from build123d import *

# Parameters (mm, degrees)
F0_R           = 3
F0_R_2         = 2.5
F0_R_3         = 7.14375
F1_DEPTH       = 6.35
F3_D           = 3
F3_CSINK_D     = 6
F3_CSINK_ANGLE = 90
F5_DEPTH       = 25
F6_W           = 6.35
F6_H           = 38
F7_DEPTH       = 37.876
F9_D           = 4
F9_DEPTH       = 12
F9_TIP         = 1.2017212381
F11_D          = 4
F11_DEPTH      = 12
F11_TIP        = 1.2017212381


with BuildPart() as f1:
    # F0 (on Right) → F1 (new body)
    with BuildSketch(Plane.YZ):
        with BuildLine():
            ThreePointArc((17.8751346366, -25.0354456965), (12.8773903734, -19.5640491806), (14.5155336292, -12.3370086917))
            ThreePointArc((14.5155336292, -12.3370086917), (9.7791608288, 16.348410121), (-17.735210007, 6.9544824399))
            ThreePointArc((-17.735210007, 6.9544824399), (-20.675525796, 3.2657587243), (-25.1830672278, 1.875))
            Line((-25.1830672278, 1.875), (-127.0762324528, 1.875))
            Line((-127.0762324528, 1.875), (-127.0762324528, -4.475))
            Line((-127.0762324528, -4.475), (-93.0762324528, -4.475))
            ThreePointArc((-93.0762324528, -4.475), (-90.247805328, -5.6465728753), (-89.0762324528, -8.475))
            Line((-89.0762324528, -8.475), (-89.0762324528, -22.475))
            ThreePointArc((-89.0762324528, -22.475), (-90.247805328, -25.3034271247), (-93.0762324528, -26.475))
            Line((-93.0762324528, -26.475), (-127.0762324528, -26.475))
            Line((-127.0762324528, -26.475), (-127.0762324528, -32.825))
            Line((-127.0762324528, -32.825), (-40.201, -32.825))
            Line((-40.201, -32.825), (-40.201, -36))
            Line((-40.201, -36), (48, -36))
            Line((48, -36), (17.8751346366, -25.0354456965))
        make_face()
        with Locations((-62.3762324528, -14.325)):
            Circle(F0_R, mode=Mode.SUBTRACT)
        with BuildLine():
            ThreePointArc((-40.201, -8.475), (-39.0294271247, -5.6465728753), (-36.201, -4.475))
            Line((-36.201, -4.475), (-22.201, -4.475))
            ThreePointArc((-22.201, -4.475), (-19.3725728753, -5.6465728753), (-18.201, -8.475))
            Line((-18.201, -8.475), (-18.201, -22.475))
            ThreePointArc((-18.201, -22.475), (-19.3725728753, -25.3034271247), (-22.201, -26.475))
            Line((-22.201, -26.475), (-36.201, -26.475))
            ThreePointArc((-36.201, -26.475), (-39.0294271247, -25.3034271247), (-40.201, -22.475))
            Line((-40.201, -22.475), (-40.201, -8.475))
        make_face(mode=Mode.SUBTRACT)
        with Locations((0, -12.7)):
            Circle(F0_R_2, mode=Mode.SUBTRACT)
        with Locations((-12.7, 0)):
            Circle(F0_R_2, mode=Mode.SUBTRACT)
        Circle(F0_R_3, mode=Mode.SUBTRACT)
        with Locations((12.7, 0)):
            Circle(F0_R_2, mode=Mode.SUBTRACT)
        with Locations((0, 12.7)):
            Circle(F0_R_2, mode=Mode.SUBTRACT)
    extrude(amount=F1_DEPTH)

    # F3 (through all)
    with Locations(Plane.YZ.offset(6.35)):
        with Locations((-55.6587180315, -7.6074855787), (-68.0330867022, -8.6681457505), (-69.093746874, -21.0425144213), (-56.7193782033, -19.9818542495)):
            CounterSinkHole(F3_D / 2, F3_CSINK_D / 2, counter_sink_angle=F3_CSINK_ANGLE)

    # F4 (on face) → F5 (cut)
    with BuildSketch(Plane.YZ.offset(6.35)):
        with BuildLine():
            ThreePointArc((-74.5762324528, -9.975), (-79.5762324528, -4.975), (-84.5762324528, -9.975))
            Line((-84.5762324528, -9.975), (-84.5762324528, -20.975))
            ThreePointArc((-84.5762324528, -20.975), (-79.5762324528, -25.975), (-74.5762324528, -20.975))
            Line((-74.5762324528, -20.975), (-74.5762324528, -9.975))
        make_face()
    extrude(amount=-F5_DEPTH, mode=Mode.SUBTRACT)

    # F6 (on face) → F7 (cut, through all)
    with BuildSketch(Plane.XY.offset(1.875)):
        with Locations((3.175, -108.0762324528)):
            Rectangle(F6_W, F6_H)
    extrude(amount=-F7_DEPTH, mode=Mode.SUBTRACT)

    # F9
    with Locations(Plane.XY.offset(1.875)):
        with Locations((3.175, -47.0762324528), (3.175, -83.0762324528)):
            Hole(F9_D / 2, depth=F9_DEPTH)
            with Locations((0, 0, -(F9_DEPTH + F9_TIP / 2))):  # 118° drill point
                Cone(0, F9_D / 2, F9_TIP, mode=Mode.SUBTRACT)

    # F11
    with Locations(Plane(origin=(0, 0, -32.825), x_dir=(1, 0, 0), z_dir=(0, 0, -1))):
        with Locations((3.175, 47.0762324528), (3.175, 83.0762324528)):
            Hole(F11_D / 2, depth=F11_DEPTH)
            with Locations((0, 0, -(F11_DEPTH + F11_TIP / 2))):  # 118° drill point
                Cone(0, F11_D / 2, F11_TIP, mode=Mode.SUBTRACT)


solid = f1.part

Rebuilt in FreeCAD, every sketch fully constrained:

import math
import FreeCAD as App
import Part
import Sketcher
from FreeCAD import Vector
Q = App.Units.Quantity


def add_polygon(sketch, points):
    """Adds a closed chain of lines whose ends are joined by coincident constraints."""
    first, n = sketch.GeometryCount, len(points)
    for a, b in zip(points, points[1:] + points[:1]):
        sketch.addGeometry(Part.LineSegment(App.Vector(*a, 0), App.Vector(*b, 0)), False)
    for i in range(n):
        sketch.addConstraint(Sketcher.Constraint("Coincident", first + i, 2, first + (i + 1) % n, 1))

doc = App.newDocument("Part")
body = doc.addObject("PartDesign::Body", "Body")

# Sketch on YZ plane
sketch1 = doc.addObject("Sketcher::SketchObject", "Sketch")
body.addObject(sketch1)
sketch1.AttachmentSupport = (doc.YZ_Plane, [""])
sketch1.MapMode = "FlatFace"
sketch1.addGeometry([
    Part.ArcOfCircle(Part.Circle(Vector(20.6, -17.5, 0), Vector(0, 0, 1), 8), math.radians(140), math.radians(250)),  # 0
    Part.ArcOfCircle(Part.Circle(Vector(0, 0, 0), Vector(0, 0, 1), 19.1), math.radians(-40), math.radians(159)),  # 1
    Part.ArcOfCircle(Part.Circle(Vector(-25.2, 9.9, 0), Vector(0, 0, 1), 8), math.radians(-90), math.radians(-21)),  # 2
    Part.LineSegment(Vector(-25.2, 1.9, 0), Vector(-127.1, 1.9, 0)),  # 3
    Part.LineSegment(Vector(-127.1, 1.9, 0), Vector(-127.1, -4.5, 0)),  # 4
    Part.LineSegment(Vector(-127.1, -4.5, 0), Vector(-93.1, -4.5, 0)),  # 5
    Part.ArcOfCircle(Part.Circle(Vector(-93.1, -8.5, 0), Vector(0, 0, 1), 4), math.radians(0), math.radians(90)),  # 6
    Part.LineSegment(Vector(-89.1, -8.5, 0), Vector(-89.1, -22.5, 0)),  # 7
    Part.ArcOfCircle(Part.Circle(Vector(-93.1, -22.5, 0), Vector(0, 0, 1), 4), math.radians(-90), math.radians(0)),  # 8
    Part.LineSegment(Vector(-93.1, -26.5, 0), Vector(-127.1, -26.5, 0)),  # 9
    Part.LineSegment(Vector(-127.1, -26.5, 0), Vector(-127.1, -32.8, 0)),  # 10
    Part.LineSegment(Vector(-127.1, -32.8, 0), Vector(-40.2, -32.8, 0)),  # 11
    Part.LineSegment(Vector(-40.2, -32.8, 0), Vector(-40.2, -36, 0)),  # 12
    Part.LineSegment(Vector(-40.2, -36, 0), Vector(48, -36, 0)),  # 13
    Part.LineSegment(Vector(48, -36, 0), Vector(17.9, -25, 0)),  # 14
    Part.Circle(Vector(-62.4, -14.3, 0), Vector(0, 0, 1), 3),  # 15
    Part.LineSegment(Vector(-40.2, -22.5, 0), Vector(-40.2, -8.5, 0)),  # 16
    Part.ArcOfCircle(Part.Circle(Vector(-36.2, -8.5, 0), Vector(0, 0, 1), 4), math.radians(90), math.radians(180)),  # 17
    Part.LineSegment(Vector(-36.2, -4.5, 0), Vector(-22.2, -4.5, 0)),  # 18
    Part.ArcOfCircle(Part.Circle(Vector(-22.2, -8.5, 0), Vector(0, 0, 1), 4), math.radians(0), math.radians(90)),  # 19
    Part.LineSegment(Vector(-18.2, -8.5, 0), Vector(-18.2, -22.5, 0)),  # 20
    Part.ArcOfCircle(Part.Circle(Vector(-22.2, -22.5, 0), Vector(0, 0, 1), 4), math.radians(-90), math.radians(0)),  # 21
    Part.LineSegment(Vector(-22.2, -26.5, 0), Vector(-36.2, -26.5, 0)),  # 22
    Part.ArcOfCircle(Part.Circle(Vector(-36.2, -22.5, 0), Vector(0, 0, 1), 4), math.radians(180), math.radians(270)),  # 23
    Part.Circle(Vector(0, -12.7, 0), Vector(0, 0, 1), 2.5),  # 24
    Part.Circle(Vector(-12.7, 0, 0), Vector(0, 0, 1), 2.5),  # 25
    Part.Circle(Vector(0, 0, 0), Vector(0, 0, 1), 7.1),  # 26
    Part.Circle(Vector(12.7, 0, 0), Vector(0, 0, 1), 2.5),  # 27
    Part.Circle(Vector(0, 12.7, 0), Vector(0, 0, 1), 2.5),  # 28
], False)
sketch1.addConstraint([
    Sketcher.Constraint("Tangent", 0, 1, 1, 1),
    Sketcher.Constraint("Tangent", 1, 2, 2, 2),
    Sketcher.Constraint("Tangent", 2, 1, 3, 1),
    Sketcher.Constraint("Coincident", 3, 2, 4, 1),
    Sketcher.Constraint("Coincident", 4, 2, 5, 1),
    Sketcher.Constraint("Tangent", 5, 2, 6, 2),
    Sketcher.Constraint("Tangent", 6, 1, 7, 1),
    Sketcher.Constraint("Tangent", 7, 2, 8, 2),
    Sketcher.Constraint("Tangent", 8, 1, 9, 1),
    Sketcher.Constraint("Coincident", 9, 2, 10, 1),
    Sketcher.Constraint("Coincident", 10, 2, 11, 1),
    Sketcher.Constraint("Coincident", 11, 2, 12, 1),
    Sketcher.Constraint("Coincident", 12, 2, 13, 1),
    Sketcher.Constraint("Coincident", 13, 2, 14, 1),
    Sketcher.Constraint("Tangent", 14, 2, 0, 2),
    Sketcher.Constraint("Tangent", 16, 2, 17, 2),
    Sketcher.Constraint("Tangent", 17, 1, 18, 1),
    Sketcher.Constraint("Tangent", 18, 2, 19, 2),
    Sketcher.Constraint("Tangent", 19, 1, 20, 1),
    Sketcher.Constraint("Tangent", 20, 2, 21, 2),
    Sketcher.Constraint("Tangent", 21, 1, 22, 1),
    Sketcher.Constraint("Tangent", 22, 2, 23, 2),
    Sketcher.Constraint("Tangent", 23, 1, 16, 1),
    Sketcher.Constraint("Horizontal", 3),
    Sketcher.Constraint("Vertical", 4),
    Sketcher.Constraint("Horizontal", 5),
    Sketcher.Constraint("Vertical", 7),
    Sketcher.Constraint("Horizontal", 9),
    Sketcher.Constraint("Vertical", 10),
    Sketcher.Constraint("Horizontal", 11),
    Sketcher.Constraint("Vertical", 12),
    Sketcher.Constraint("Horizontal", 13),
    Sketcher.Constraint("Vertical", 16),
    Sketcher.Constraint("Horizontal", 18),
    Sketcher.Constraint("Vertical", 20),
    Sketcher.Constraint("Horizontal", 22),
    Sketcher.Constraint("Coincident", 1, 3, -1, 1),
    Sketcher.Constraint("Coincident", 26, 3, -1, 1),
    Sketcher.Constraint("Equal", 0, 2),
    Sketcher.Constraint("Equal", 6, 8),
    Sketcher.Constraint("Equal", 8, 17),
    Sketcher.Constraint("Equal", 17, 19),
    Sketcher.Constraint("Equal", 19, 21),
    Sketcher.Constraint("Equal", 21, 23),
    Sketcher.Constraint("Equal", 24, 25),
    Sketcher.Constraint("Equal", 25, 27),
    Sketcher.Constraint("Equal", 27, 28),
    Sketcher.Constraint("Symmetric", 25, 3, 27, 3, -1, 1),
    Sketcher.Constraint("Symmetric", 24, 3, 28, 3, -1, 1),
    Sketcher.Constraint("PointOnObject", 24, 3, -2),
    Sketcher.Constraint("PointOnObject", 25, 3, -1),
    Sketcher.Constraint("Horizontal", 6, 3, 17, 3),
    Sketcher.Constraint("Horizontal", 8, 3, 21, 3),
    Sketcher.Constraint("Vertical", 4, 2, 9, 2),
    Sketcher.Constraint("Vertical", 12, 2, 16, 2),
    Sketcher.Constraint("Equal", 22, 7),
    Sketcher.Constraint("Equal", 4, 10),
    Sketcher.Constraint("Diameter", 15, Q("6 mm")),
    Sketcher.Constraint("Diameter", 24, Q("5 mm")),
    Sketcher.Constraint("Radius", 0, Q("8 mm")),
    Sketcher.Constraint("Radius", 6, Q("4 mm")),
    Sketcher.Constraint("DistanceX", 5, 1, 5, 2, Q("34 mm")),
    Sketcher.Constraint("DistanceX", 18, 1, 18, 2, Q("14 mm")),
    Sketcher.Constraint("Angle", 14, Q("160 deg")),
    Sketcher.Constraint("Radius", 1, Q("19.05 mm")),
    Sketcher.Constraint("DistanceY", 12, 2, -1, 1, Q("36 mm")),
    Sketcher.Constraint("DistanceX", -1, 1, 13, 2, Q("48 mm")),
    Sketcher.Constraint("Diameter", 26, Q("14.2875 mm")),
    Sketcher.Constraint("DistanceY", 4, 2, 4, 1, Q("6.35 mm")),
    Sketcher.Constraint("DistanceY", 24, 3, -1, 1, Q("12.7 mm")),
    Sketcher.Constraint("DistanceX", 25, 3, -1, 1, Q("12.7 mm")),
    Sketcher.Constraint("DistanceX", 6, 3, 15, 3, Q("30.7 mm")),
    Sketcher.Constraint("DistanceY", 15, 3, 2, 3, Q("24.2 mm")),
    Sketcher.Constraint("DistanceX", 13, 1, 13, 2, Q("88.201 mm")),
    Sketcher.Constraint("DistanceY", 12, 2, 12, 1, Q("3.175 mm")),
    Sketcher.Constraint("DistanceX", 3, 2, 3, 1, Q("101.893165 mm")),
])
pad1 = doc.addObject("PartDesign::Pad", "Pad")
body.addObject(pad1)
pad1.Profile = sketch1
pad1.Length = 6.35

# Sketch on YZ plane
sketch2 = doc.addObject("Sketcher::SketchObject", "Sketch001")
body.addObject(sketch2)
sketch2.AttachmentSupport = (doc.YZ_Plane, [""])
sketch2.MapMode = "FlatFace"
sketch2.AttachmentOffset = App.Placement(Vector(0, 0, 6.35), App.Rotation())
sketch2.addGeometry([
    Part.Circle(Vector(-55.7, -7.6, 0), Vector(0, 0, 1), 1.5),
    Part.Circle(Vector(-68, -8.7, 0), Vector(0, 0, 1), 1.5),
    Part.Circle(Vector(-69.1, -21, 0), Vector(0, 0, 1), 1.5),
    Part.Circle(Vector(-56.7, -20, 0), Vector(0, 0, 1), 1.5),
], False)
sketch2.addConstraint([
    Sketcher.Constraint("Equal", 0, 1),
    Sketcher.Constraint("Equal", 1, 2),
    Sketcher.Constraint("Equal", 2, 3),
    Sketcher.Constraint("Diameter", 0, Q("3 mm")),
    Sketcher.Constraint("DistanceX", 0, 3, -1, 1, Q("55.658718 mm")),
    Sketcher.Constraint("DistanceX", 3, 3, -1, 1, Q("56.719378 mm")),
    Sketcher.Constraint("DistanceX", 1, 3, 0, 3, Q("12.374369 mm")),
    Sketcher.Constraint("DistanceY", 1, 3, 0, 3, Q("1.06066 mm")),
    Sketcher.Constraint("DistanceX", 2, 3, 1, 3, Q("1.06066 mm")),
    Sketcher.Constraint("DistanceY", 2, 3, 1, 3, Q("12.374369 mm")),
    Sketcher.Constraint("DistanceY", 3, 3, 0, 3, Q("12.374369 mm")),
    Sketcher.Constraint("DistanceY", 0, 3, -1, 1, Q("7.607486 mm")),
])
doc.recompute()
hole = doc.addObject("PartDesign::Hole", "Hole")
body.addObject(hole)
hole.Profile = sketch2
hole.ThreadType = "None"
hole.Diameter = 3
hole.DepthType = "ThroughAll"
hole.HoleCutType = "Countersink"
hole.HoleCutDiameter = 6
hole.HoleCutCountersinkAngle = 90

# Sketch on YZ plane
sketch3 = doc.addObject("Sketcher::SketchObject", "Sketch002")
body.addObject(sketch3)
sketch3.AttachmentSupport = (doc.YZ_Plane, [""])
sketch3.MapMode = "FlatFace"
sketch3.AttachmentOffset = App.Placement(Vector(0, 0, 6.35), App.Rotation())
sketch3.addGeometry([
    Part.ArcOfCircle(Part.Circle(Vector(-80, -10, 0), Vector(0, 0, 1), 5), math.radians(0), math.radians(180)),
    Part.LineSegment(Vector(-85, -10, 0), Vector(-85, -21, 0)),
    Part.ArcOfCircle(Part.Circle(Vector(-80, -21, 0), Vector(0, 0, 1), 5), math.radians(180), math.radians(360)),
    Part.LineSegment(Vector(-75, -21, 0), Vector(-75, -10, 0)),
], False)
sketch3.addConstraint([
    Sketcher.Constraint("Tangent", 0, 2, 1, 1),
    Sketcher.Constraint("Tangent", 1, 2, 2, 1),
    Sketcher.Constraint("Tangent", 2, 2, 3, 1),
    Sketcher.Constraint("Tangent", 3, 2, 0, 1),
    Sketcher.Constraint("Vertical", 1),
    Sketcher.Constraint("Vertical", 3),
    Sketcher.Constraint("Radius", 0, Q("5 mm")),
    Sketcher.Constraint("DistanceY", 1, 2, 1, 1, Q("11 mm")),
    Sketcher.Constraint("DistanceY", 0, 3, -1, 1, Q("9.975 mm")),
    Sketcher.Constraint("DistanceX", 0, 3, -1, 1, Q("79.576232 mm")),
])
pocket1 = doc.addObject("PartDesign::Pocket", "Pocket")
body.addObject(pocket1)
pocket1.Profile = sketch3
pocket1.Length = 25

# Sketch on XY plane
sketch4 = doc.addObject("Sketcher::SketchObject", "Sketch003")
body.addObject(sketch4)
sketch4.AttachmentSupport = (doc.XY_Plane, [""])
sketch4.MapMode = "FlatFace"
sketch4.AttachmentOffset = App.Placement(Vector(0, 0, 1.875), App.Rotation())
add_polygon(sketch4, [(0, -89), (0, -127), (6, -127), (6, -89)])  # lines 0-3
sketch4.addConstraint([
    Sketcher.Constraint("Vertical", 0),
    Sketcher.Constraint("Horizontal", 1),
    Sketcher.Constraint("Vertical", 2),
    Sketcher.Constraint("Horizontal", 3),
    Sketcher.Constraint("PointOnObject", 0, 2, -2),
    Sketcher.Constraint("DistanceY", 0, 2, 0, 1, Q("38 mm")),
    Sketcher.Constraint("DistanceX", 1, 1, 1, 2, Q("6.35 mm")),
    Sketcher.Constraint("DistanceY", 0, 2, -1, 1, Q("127.076232 mm")),
])
pocket2 = doc.addObject("PartDesign::Pocket", "Pocket001")
body.addObject(pocket2)
pocket2.Profile = sketch4
pocket2.Type = "ThroughAll"

# Sketch on XY plane
sketch5 = doc.addObject("Sketcher::SketchObject", "Sketch004")
body.addObject(sketch5)
sketch5.AttachmentSupport = (doc.XY_Plane, [""])
sketch5.MapMode = "FlatFace"
sketch5.AttachmentOffset = App.Placement(Vector(0, 0, 1.875), App.Rotation())
sketch5.addGeometry([
    Part.Circle(Vector(3.2, -47.1, 0), Vector(0, 0, 1), 2),
    Part.Circle(Vector(3.2, -83.1, 0), Vector(0, 0, 1), 2),
], False)
sketch5.addConstraint([
    Sketcher.Constraint("Equal", 0, 1),
    Sketcher.Constraint("Vertical", 0, 3, 1, 3),
    Sketcher.Constraint("Diameter", 0, Q("4 mm")),
    Sketcher.Constraint("DistanceY", 1, 3, 0, 3, Q("36 mm")),
    Sketcher.Constraint("DistanceX", -1, 1, 0, 3, Q("3.175 mm")),
    Sketcher.Constraint("DistanceY", 0, 3, -1, 1, Q("47.076232 mm")),
])
doc.recompute()
hole2 = doc.addObject("PartDesign::Hole", "Hole001")
body.addObject(hole2)
hole2.Profile = sketch5
hole2.ThreadType = "None"
hole2.Diameter = 4
hole2.DepthType = "Dimension"
hole2.Depth = 12
hole2.DrillPoint = "Angled"
hole2.DrillPointAngle = 118

# Sketch on XY plane
sketch6 = doc.addObject("Sketcher::SketchObject", "Sketch005")
body.addObject(sketch6)
sketch6.AttachmentSupport = (doc.XY_Plane, [""])
sketch6.MapMode = "FlatFace"
sketch6.AttachmentOffset = App.Placement(Vector(0, 0, -32.825), App.Rotation())
sketch6.addGeometry([
    Part.Circle(Vector(3.2, -47.1, 0), Vector(0, 0, 1), 2),
    Part.Circle(Vector(3.2, -83.1, 0), Vector(0, 0, 1), 2),
], False)
sketch6.addConstraint([
    Sketcher.Constraint("Equal", 0, 1),
    Sketcher.Constraint("Vertical", 0, 3, 1, 3),
    Sketcher.Constraint("Diameter", 0, Q("4 mm")),
    Sketcher.Constraint("DistanceY", 1, 3, 0, 3, Q("36 mm")),
    Sketcher.Constraint("DistanceX", -1, 1, 0, 3, Q("3.175 mm")),
    Sketcher.Constraint("DistanceY", 0, 3, -1, 1, Q("47.076232 mm")),
])
doc.recompute()
hole3 = doc.addObject("PartDesign::Hole", "Hole002")
body.addObject(hole3)
hole3.Profile = sketch6
hole3.ThreadType = "None"
hole3.Diameter = 4
hole3.DepthType = "Dimension"
hole3.Depth = 12
hole3.DrillPoint = "Angled"
hole3.DrillPointAngle = 118
hole3.Reversed = True

doc.recompute()
